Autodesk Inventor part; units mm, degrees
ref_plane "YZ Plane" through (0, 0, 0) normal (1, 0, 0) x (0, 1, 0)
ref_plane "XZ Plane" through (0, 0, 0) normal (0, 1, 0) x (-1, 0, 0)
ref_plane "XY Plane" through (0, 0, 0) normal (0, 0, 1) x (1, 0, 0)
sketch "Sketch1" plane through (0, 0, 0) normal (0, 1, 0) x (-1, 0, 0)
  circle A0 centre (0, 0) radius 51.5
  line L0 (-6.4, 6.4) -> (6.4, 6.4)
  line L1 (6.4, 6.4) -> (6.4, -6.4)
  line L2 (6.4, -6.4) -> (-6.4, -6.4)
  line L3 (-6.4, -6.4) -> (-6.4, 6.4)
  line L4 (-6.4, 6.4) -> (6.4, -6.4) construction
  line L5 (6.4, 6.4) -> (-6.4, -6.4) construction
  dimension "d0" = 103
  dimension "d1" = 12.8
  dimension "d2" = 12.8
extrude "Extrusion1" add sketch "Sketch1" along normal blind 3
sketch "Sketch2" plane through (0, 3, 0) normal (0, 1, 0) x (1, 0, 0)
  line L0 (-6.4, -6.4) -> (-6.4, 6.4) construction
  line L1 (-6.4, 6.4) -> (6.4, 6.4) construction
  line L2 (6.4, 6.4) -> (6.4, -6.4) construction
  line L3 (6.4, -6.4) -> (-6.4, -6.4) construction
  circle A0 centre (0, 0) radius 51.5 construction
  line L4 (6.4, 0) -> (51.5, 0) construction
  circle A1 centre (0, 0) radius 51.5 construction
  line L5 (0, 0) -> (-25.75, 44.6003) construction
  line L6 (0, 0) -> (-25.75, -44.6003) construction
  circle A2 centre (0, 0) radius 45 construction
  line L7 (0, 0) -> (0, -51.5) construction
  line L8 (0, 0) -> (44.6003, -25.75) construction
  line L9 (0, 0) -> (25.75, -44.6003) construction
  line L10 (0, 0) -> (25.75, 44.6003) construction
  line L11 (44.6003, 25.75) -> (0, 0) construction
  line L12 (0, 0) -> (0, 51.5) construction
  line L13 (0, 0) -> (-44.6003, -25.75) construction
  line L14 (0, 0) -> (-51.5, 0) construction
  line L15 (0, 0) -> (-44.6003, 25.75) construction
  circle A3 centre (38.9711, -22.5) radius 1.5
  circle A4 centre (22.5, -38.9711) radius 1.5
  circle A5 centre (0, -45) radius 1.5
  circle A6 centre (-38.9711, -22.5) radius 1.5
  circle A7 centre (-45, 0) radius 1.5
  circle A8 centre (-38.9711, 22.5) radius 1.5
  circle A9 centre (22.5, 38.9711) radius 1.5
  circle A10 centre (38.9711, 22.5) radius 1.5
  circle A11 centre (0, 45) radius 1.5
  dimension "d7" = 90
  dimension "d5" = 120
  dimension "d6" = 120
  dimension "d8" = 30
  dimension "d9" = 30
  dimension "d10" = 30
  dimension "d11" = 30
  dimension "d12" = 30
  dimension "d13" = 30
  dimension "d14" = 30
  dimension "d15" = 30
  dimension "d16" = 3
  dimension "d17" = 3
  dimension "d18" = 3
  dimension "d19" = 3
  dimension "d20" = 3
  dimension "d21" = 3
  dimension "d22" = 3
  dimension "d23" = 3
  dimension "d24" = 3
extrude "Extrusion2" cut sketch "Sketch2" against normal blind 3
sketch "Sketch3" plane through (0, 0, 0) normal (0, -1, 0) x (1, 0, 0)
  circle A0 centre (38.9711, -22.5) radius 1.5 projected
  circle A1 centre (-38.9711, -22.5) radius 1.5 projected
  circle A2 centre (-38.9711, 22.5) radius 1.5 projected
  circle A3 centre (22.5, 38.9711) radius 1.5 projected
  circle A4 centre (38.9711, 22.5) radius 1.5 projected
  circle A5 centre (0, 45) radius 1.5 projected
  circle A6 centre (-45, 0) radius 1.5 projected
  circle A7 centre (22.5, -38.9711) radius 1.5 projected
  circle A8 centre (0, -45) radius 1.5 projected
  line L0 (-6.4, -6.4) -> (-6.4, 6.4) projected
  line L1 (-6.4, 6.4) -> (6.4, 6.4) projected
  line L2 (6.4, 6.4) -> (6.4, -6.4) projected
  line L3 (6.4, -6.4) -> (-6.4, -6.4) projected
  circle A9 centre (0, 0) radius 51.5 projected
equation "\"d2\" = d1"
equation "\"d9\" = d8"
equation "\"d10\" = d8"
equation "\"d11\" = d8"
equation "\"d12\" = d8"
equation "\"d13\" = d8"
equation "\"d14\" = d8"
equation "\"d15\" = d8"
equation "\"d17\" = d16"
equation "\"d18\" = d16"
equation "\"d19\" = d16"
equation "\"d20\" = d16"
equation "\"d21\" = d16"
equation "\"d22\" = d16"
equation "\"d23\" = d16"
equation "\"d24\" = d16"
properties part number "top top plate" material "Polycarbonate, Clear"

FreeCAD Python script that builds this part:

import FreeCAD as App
import Part
import Sketcher
from FreeCAD import Vector
Q = App.Units.Quantity

doc = App.newDocument("Part")
body = doc.addObject("PartDesign::Body", "Body")

# Sketch on XZ plane
sketch1 = body.newObject("Sketcher::SketchObject", "Sketch")
sketch1.AttachmentSupport = (doc.getObject("XZ_Plane"), [""])
sketch1.MapMode = "FlatFace"
sketch1.addGeometry([
    Part.Circle(Vector(0, 0, 0), Vector(0, 0, 1), 51.5),  # 0
    Part.LineSegment(Vector(6.4, -6.4, 0), Vector(6.4, 6.4, 0)),  # 1
    Part.LineSegment(Vector(6.4, 6.4, 0), Vector(-6.4, 6.4, 0)),  # 2
    Part.LineSegment(Vector(-6.4, 6.4, 0), Vector(-6.4, -6.4, 0)),  # 3
    Part.LineSegment(Vector(-6.4, -6.4, 0), Vector(6.4, -6.4, 0)),  # 4
], False)
sketch1.addConstraint([
    Sketcher.Constraint("Coincident", 1, 2, 2, 1),
    Sketcher.Constraint("Coincident", 2, 2, 3, 1),
    Sketcher.Constraint("Coincident", 3, 2, 4, 1),
    Sketcher.Constraint("Coincident", 4, 2, 1, 1),
    Sketcher.Constraint("Vertical", 1),
    Sketcher.Constraint("Horizontal", 2),
    Sketcher.Constraint("Vertical", 3),
    Sketcher.Constraint("Horizontal", 4),
    Sketcher.Constraint("Coincident", 0, 3, -1, 1),
    Sketcher.Constraint("Symmetric", 1, 2, 3, 2, -1, 1),
    Sketcher.Constraint("Equal", 4, 1),
    Sketcher.Constraint("Diameter", 0, Q("103 mm")),
    Sketcher.Constraint("DistanceX", 2, 2, 2, 1, Q("12.8 mm")),
])
pad1 = body.newObject("PartDesign::Pad", "Pad")
pad1.Profile = sketch1
pad1.Length = 3
pad1.Reversed = True

# Sketch on XZ plane
sketch2 = body.newObject("Sketcher::SketchObject", "Sketch001")
sketch2.AttachmentSupport = (doc.getObject("XZ_Plane"), [""])
sketch2.MapMode = "FlatFace"
sketch2.AttachmentOffset = App.Placement(Vector(0, 0, -3), App.Rotation())
sketch2.addGeometry([
    Part.Circle(Vector(38.9711, 22.5, 0), Vector(0, 0, 1), 1.5),  # 0
    Part.Circle(Vector(22.5, 38.9711, 0), Vector(0, 0, 1), 1.5),  # 1
    Part.Circle(Vector(0, 45, 0), Vector(0, 0, 1), 1.5),  # 2
    Part.Circle(Vector(-38.9711, 22.5, 0), Vector(0, 0, 1), 1.5),  # 3
    Part.Circle(Vector(-45, 0, 0), Vector(0, 0, 1), 1.5),  # 4
    Part.Circle(Vector(-38.9711, -22.5, 0), Vector(0, 0, 1), 1.5),  # 5
    Part.Circle(Vector(22.5, -38.9711, 0), Vector(0, 0, 1), 1.5),  # 6
    Part.Circle(Vector(38.9711, -22.5, 0), Vector(0, 0, 1), 1.5),  # 7
    Part.Circle(Vector(0, -45, 0), Vector(0, 0, 1), 1.5),  # 8
], False)
sketch2.addConstraint([
    Sketcher.Constraint("Equal", 0, 1),
    Sketcher.Constraint("Equal", 1, 2),
    Sketcher.Constraint("Equal", 2, 3),
    Sketcher.Constraint("Equal", 3, 4),
    Sketcher.Constraint("Equal", 4, 5),
    Sketcher.Constraint("Equal", 5, 6),
    Sketcher.Constraint("Equal", 6, 7),
    Sketcher.Constraint("Equal", 7, 8),
    Sketcher.Constraint("Symmetric", 0, 3, 5, 3, -1, 1),
    Sketcher.Constraint("Symmetric", 3, 3, 7, 3, -1, 1),
    Sketcher.Constraint("Symmetric", 2, 3, 8, 3, -1, 1),
    Sketcher.Constraint("Symmetric", 0, 3, 3, 3, -2),
    Sketcher.Constraint("Symmetric", 1, 3, 6, 3, -1),
    Sketcher.Constraint("PointOnObject", 2, 3, -2),
    Sketcher.Constraint("PointOnObject", 4, 3, -1),
    Sketcher.Constraint("Diameter", 0, Q("3 mm")),
    Sketcher.Constraint("DistanceY", -1, 1, 2, 3, Q("45 mm")),
    Sketcher.Constraint("DistanceX", 4, 3, -1, 1, Q("45 mm")),
    Sketcher.Constraint("DistanceY", 5, 3, 3, 3, Q("45 mm")),
    Sketcher.Constraint("DistanceX", -1, 1, 1, 3, Q("22.5 mm")),
    Sketcher.Constraint("DistanceX", -1, 1, 0, 3, Q("38.971 mm")),
    Sketcher.Constraint("DistanceY", -1, 1, 1, 3, Q("38.971 mm")),
])
pocket1 = body.newObject("PartDesign::Pocket", "Pocket")
pocket1.Profile = sketch2
pocket1.Length = 3
pocket1.Reversed = True

doc.recompute()
